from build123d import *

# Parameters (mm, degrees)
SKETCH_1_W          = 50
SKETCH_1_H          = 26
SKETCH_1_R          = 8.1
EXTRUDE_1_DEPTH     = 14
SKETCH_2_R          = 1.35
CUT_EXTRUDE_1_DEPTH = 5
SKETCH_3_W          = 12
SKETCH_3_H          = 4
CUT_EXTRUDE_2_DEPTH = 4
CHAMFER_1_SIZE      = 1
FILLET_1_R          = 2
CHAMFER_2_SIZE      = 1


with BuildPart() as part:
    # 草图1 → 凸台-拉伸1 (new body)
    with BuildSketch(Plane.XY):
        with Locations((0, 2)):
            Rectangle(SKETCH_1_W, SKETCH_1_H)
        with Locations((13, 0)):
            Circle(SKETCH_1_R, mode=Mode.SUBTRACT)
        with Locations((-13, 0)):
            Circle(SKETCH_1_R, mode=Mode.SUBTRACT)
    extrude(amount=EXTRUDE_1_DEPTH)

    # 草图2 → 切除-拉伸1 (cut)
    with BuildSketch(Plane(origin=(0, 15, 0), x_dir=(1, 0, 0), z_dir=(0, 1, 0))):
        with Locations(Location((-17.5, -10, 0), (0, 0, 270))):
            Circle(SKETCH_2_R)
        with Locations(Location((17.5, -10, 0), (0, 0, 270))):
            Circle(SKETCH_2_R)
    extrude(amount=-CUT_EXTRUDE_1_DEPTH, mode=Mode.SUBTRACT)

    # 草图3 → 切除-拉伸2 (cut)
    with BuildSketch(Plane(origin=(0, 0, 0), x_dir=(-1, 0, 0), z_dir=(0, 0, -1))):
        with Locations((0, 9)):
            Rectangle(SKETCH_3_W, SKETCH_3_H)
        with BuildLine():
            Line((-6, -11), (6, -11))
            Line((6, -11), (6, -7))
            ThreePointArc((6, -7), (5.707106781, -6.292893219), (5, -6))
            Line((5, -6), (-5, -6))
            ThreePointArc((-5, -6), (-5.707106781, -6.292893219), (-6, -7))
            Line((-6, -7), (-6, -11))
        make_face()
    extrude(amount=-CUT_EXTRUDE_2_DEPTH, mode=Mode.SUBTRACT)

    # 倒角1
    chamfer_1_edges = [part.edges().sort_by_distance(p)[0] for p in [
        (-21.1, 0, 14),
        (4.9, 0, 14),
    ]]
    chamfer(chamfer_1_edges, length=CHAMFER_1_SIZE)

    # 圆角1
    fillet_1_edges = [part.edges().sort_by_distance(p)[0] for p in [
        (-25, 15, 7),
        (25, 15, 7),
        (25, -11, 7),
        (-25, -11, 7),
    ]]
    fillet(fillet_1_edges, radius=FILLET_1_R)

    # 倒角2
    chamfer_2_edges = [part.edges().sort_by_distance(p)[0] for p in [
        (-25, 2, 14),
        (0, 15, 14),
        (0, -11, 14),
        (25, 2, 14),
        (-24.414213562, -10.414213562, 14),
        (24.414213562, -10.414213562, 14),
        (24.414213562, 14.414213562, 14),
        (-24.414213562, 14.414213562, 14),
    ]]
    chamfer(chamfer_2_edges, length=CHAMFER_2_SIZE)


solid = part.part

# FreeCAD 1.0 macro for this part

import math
import FreeCAD as App
import Part
import Sketcher
Q = App.Units.Quantity


def edges_at(feature, points):
    """Names of the edges that pass closest to the given points."""
    edges = feature.Shape.Edges
    near = lambda p: min(range(len(edges)), key=lambda i: edges[i].distToShape(Part.Vertex(*p))[0])
    return sorted({f"Edge{near(p) + 1}" for p in points})

doc = App.newDocument("Part")
body = doc.addObject("PartDesign::Body", "Body")

# Sketch on XY plane
sketch1 = body.newObject("Sketcher::SketchObject", "Sketch")
sketch1.AttachmentSupport = (doc.getObject("XY_Plane"), [""])
sketch1.MapMode = "FlatFace"
sketch1.addGeometry(Part.LineSegment(App.Vector(-25, 15, 0), App.Vector(-25, -11, 0)), False)
sketch1.addGeometry(Part.LineSegment(App.Vector(-25, -11, 0), App.Vector(25, -11, 0)), False)
sketch1.addGeometry(Part.LineSegment(App.Vector(25, -11, 0), App.Vector(25, 15, 0)), False)
sketch1.addGeometry(Part.LineSegment(App.Vector(25, 15, 0), App.Vector(-25, 15, 0)), False)
sketch1.addGeometry(Part.Circle(App.Vector(-13, 0, 0), App.Vector(0, 0, 1), 8), False)
sketch1.addGeometry(Part.Circle(App.Vector(13, 0, 0), App.Vector(0, 0, 1), 8), False)
sketch1.addConstraint(Sketcher.Constraint("Coincident", 0, 2, 1, 1))
sketch1.addConstraint(Sketcher.Constraint("Coincident", 1, 2, 2, 1))
sketch1.addConstraint(Sketcher.Constraint("Coincident", 2, 2, 3, 1))
sketch1.addConstraint(Sketcher.Constraint("Coincident", 3, 2, 0, 1))
sketch1.addConstraint(Sketcher.Constraint("Vertical", 0))
sketch1.addConstraint(Sketcher.Constraint("Horizontal", 1))
sketch1.addConstraint(Sketcher.Constraint("Vertical", 2))
sketch1.addConstraint(Sketcher.Constraint("Horizontal", 3))
sketch1.addConstraint(Sketcher.Constraint("Equal", 4, 5))
sketch1.addConstraint(Sketcher.Constraint("Symmetric", 4, 3, 5, 3, -1, 1))
sketch1.addConstraint(Sketcher.Constraint("PointOnObject", 4, 3, -1))
sketch1.addConstraint(Sketcher.Constraint("Diameter", 4, Q("16.2 mm")))
sketch1.addConstraint(Sketcher.Constraint("DistanceX", 1, 1, 1, 2, Q("50 mm")))
sketch1.addConstraint(Sketcher.Constraint("DistanceY", 0, 2, 0, 1, Q("26 mm")))
sketch1.addConstraint(Sketcher.Constraint("DistanceX", 4, 3, -1, 1, Q("13 mm")))
sketch1.addConstraint(Sketcher.Constraint("DistanceX", 0, 2, -1, 1, Q("25 mm")))
sketch1.addConstraint(Sketcher.Constraint("DistanceY", 0, 2, -1, 1, Q("11 mm")))
pad1 = body.newObject("PartDesign::Pad", "Pad")
pad1.Profile = sketch1
pad1.Length = 14

# Sketch on XZ plane
sketch2 = body.newObject("Sketcher::SketchObject", "Sketch001")
sketch2.AttachmentSupport = (doc.getObject("XZ_Plane"), [""])
sketch2.MapMode = "FlatFace"
sketch2.AttachmentOffset = App.Placement(App.Vector(0, 0, -15), App.Rotation())
sketch2.addGeometry(Part.Circle(App.Vector(-17.5, 10, 0), App.Vector(0, 0, 1), 1.4), False)
sketch2.addGeometry(Part.Circle(App.Vector(17.5, 10, 0), App.Vector(0, 0, 1), 1.4), False)
sketch2.addConstraint(Sketcher.Constraint("Equal", 0, 1))
sketch2.addConstraint(Sketcher.Constraint("Symmetric", 0, 3, 1, 3, -2))
sketch2.addConstraint(Sketcher.Constraint("Diameter", 0, Q("2.7 mm")))
sketch2.addConstraint(Sketcher.Constraint("DistanceY", -1, 1, 0, 3, Q("10 mm")))
sketch2.addConstraint(Sketcher.Constraint("DistanceX", 0, 3, 1, 3, Q("35 mm")))
pocket1 = body.newObject("PartDesign::Pocket", "Pocket")
pocket1.Profile = sketch2
pocket1.Length = 5
pocket1.Reversed = True

# Sketch on XY plane
sketch3 = body.newObject("Sketcher::SketchObject", "Sketch002")
sketch3.AttachmentSupport = (doc.getObject("XY_Plane"), [""])
sketch3.MapMode = "FlatFace"
sketch3.addGeometry(Part.LineSegment(App.Vector(6, 11, 0), App.Vector(6, 7, 0)), False)
sketch3.addGeometry(Part.LineSegment(App.Vector(6, 7, 0), App.Vector(-6, 7, 0)), False)
sketch3.addGeometry(Part.LineSegment(App.Vector(-6, 7, 0), App.Vector(-6, 11, 0)), False)
sketch3.addGeometry(Part.LineSegment(App.Vector(-6, 11, 0), App.Vector(6, 11, 0)), False)
sketch3.addGeometry(Part.LineSegment(App.Vector(6, -11, 0), App.Vector(-6, -11, 0)), False)
sketch3.addGeometry(Part.LineSegment(App.Vector(-6, -11, 0), App.Vector(-6, -7, 0)), False)
sketch3.addGeometry(Part.ArcOfCircle(Part.Circle(App.Vector(-5, -7, 0), App.Vector(0, 0, 1), 1), math.radians(90), math.radians(180)), False)
sketch3.addGeometry(Part.LineSegment(App.Vector(-5, -6, 0), App.Vector(5, -6, 0)), False)
sketch3.addGeometry(Part.ArcOfCircle(Part.Circle(App.Vector(5, -7, 0), App.Vector(0, 0, 1), 1), math.radians(0), math.radians(90)), False)
sketch3.addGeometry(Part.LineSegment(App.Vector(6, -7, 0), App.Vector(6, -11, 0)), False)
sketch3.addConstraint(Sketcher.Constraint("Coincident", 0, 2, 1, 1))
sketch3.addConstraint(Sketcher.Constraint("Coincident", 1, 2, 2, 1))
sketch3.addConstraint(Sketcher.Constraint("Coincident", 2, 2, 3, 1))
sketch3.addConstraint(Sketcher.Constraint("Coincident", 3, 2, 0, 1))
sketch3.addConstraint(Sketcher.Constraint("Coincident", 4, 2, 5, 1))
sketch3.addConstraint(Sketcher.Constraint("Tangent", 5, 2, 6, 2))
sketch3.addConstraint(Sketcher.Constraint("Tangent", 6, 1, 7, 1))
sketch3.addConstraint(Sketcher.Constraint("Tangent", 7, 2, 8, 2))
sketch3.addConstraint(Sketcher.Constraint("Tangent", 8, 1, 9, 1))
sketch3.addConstraint(Sketcher.Constraint("Coincident", 9, 2, 4, 1))
sketch3.addConstraint(Sketcher.Constraint("Vertical", 0))
sketch3.addConstraint(Sketcher.Constraint("Horizontal", 1))
sketch3.addConstraint(Sketcher.Constraint("Vertical", 2))
sketch3.addConstraint(Sketcher.Constraint("Horizontal", 3))
sketch3.addConstraint(Sketcher.Constraint("Horizontal", 4))
sketch3.addConstraint(Sketcher.Constraint("Vertical", 5))
sketch3.addConstraint(Sketcher.Constraint("Horizontal", 7))
sketch3.addConstraint(Sketcher.Constraint("Vertical", 9))
sketch3.addConstraint(Sketcher.Constraint("Equal", 6, 8))
sketch3.addConstraint(Sketcher.Constraint("Symmetric", 3, 2, 4, 2, -1, 1))
sketch3.addConstraint(Sketcher.Constraint("Symmetric", 1, 2, 8, 1, -1, 1))
sketch3.addConstraint(Sketcher.Constraint("Vertical", 2, 2, 4, 2))
sketch3.addConstraint(Sketcher.Constraint("Radius", 6, Q("1 mm")))
sketch3.addConstraint(Sketcher.Constraint("DistanceX", 1, 2, 1, 1, Q("12 mm")))
sketch3.addConstraint(Sketcher.Constraint("DistanceY", 0, 2, 0, 1, Q("4 mm")))
sketch3.addConstraint(Sketcher.Constraint("DistanceY", 6, 3, -1, 1, Q("7 mm")))
pocket2 = body.newObject("PartDesign::Pocket", "Pocket001")
pocket2.Profile = sketch3
pocket2.Length = 4
pocket2.Reversed = True
doc.recompute()

chamfer = body.newObject("PartDesign::Chamfer", "Chamfer")
chamfer.Base = (pocket2, edges_at(pocket2, [(-21.1, 0, 14), (4.9, 0, 14)]))
chamfer.Size = 1
doc.recompute()

fillet = body.newObject("PartDesign::Fillet", "Fillet")
fillet.Base = (chamfer, edges_at(chamfer, [
    (-25, 15, 7),
    (25, 15, 7),
    (25, -11, 7),
    (-25, -11, 7),
]))
fillet.Radius = 2
doc.recompute()

chamfer2 = body.newObject("PartDesign::Chamfer", "Chamfer001")
chamfer2.Base = (fillet, edges_at(fillet, [
    (-25, 2, 14),
    (0, 15, 14),
    (0, -11, 14),
    (25, 2, 14),
    (-24.414, -10.414, 14),
    (24.414, -10.414, 14),
    (24.414, 14.414, 14),
    (-24.414, 14.414, 14),
]))
chamfer2.Size = 1

doc.recompute()
